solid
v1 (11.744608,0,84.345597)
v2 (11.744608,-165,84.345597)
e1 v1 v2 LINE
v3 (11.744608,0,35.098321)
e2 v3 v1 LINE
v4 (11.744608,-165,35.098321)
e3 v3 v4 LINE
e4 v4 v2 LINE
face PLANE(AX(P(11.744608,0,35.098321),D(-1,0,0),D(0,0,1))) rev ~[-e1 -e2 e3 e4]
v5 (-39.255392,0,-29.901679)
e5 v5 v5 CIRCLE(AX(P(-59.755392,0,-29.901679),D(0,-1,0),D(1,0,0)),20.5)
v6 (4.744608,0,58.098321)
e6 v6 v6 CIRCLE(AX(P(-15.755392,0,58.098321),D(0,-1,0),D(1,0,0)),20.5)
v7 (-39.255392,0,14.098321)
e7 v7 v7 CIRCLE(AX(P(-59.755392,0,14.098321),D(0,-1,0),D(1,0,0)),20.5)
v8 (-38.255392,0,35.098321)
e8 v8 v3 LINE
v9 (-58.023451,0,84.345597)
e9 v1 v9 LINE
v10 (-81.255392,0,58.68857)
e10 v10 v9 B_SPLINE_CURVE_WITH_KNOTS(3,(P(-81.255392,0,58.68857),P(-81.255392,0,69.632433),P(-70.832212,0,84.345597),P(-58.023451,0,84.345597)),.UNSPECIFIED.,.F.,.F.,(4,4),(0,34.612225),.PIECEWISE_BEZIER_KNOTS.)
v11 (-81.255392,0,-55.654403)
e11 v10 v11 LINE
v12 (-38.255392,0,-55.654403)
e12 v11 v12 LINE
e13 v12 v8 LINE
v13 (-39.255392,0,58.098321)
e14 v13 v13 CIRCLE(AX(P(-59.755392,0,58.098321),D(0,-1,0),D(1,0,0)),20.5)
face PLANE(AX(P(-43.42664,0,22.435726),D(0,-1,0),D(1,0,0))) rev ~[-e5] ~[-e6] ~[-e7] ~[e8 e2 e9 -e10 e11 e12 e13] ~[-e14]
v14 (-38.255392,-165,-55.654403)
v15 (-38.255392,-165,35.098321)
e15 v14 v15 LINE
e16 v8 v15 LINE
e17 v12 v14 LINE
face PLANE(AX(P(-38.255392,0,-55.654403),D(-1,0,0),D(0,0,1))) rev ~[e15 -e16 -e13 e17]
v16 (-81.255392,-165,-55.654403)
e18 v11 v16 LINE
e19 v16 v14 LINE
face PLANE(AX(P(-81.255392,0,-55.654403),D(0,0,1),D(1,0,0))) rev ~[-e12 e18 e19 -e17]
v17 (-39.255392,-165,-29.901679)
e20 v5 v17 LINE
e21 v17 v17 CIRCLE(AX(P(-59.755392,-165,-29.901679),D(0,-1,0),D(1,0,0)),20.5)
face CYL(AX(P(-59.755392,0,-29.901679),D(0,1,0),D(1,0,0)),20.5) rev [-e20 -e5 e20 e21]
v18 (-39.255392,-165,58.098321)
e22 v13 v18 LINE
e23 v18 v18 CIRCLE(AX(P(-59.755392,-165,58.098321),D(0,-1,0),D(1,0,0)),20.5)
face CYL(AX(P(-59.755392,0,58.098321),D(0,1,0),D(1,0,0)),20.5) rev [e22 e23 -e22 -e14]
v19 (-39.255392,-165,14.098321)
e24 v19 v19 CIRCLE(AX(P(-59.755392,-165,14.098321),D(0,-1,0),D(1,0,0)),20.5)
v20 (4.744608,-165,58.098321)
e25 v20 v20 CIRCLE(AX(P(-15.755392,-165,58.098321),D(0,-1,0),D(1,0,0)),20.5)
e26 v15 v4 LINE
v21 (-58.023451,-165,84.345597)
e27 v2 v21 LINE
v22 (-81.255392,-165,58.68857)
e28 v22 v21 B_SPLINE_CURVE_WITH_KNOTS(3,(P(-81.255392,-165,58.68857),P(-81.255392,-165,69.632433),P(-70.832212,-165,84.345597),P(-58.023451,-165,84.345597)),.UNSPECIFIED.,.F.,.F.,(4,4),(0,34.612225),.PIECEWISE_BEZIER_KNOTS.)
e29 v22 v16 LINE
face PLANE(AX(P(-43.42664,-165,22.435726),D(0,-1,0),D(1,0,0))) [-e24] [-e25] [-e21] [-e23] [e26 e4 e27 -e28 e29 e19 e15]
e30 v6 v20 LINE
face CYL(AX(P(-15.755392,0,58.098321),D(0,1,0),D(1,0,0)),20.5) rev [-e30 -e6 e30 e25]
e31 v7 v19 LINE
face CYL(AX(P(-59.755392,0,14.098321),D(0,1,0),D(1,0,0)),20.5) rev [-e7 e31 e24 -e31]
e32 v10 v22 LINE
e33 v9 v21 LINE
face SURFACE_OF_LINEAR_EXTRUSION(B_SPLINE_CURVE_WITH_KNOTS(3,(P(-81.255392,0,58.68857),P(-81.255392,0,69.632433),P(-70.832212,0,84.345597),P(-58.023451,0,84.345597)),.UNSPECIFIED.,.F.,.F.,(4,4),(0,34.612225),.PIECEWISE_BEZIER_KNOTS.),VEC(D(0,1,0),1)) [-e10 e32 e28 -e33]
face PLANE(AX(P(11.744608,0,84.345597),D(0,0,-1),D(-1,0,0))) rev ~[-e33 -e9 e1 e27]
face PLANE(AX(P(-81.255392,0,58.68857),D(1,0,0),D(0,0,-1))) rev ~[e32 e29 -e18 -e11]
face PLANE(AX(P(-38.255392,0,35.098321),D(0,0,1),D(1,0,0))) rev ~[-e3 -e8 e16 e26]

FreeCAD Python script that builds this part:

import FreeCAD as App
import Part
import Sketcher
from FreeCAD import Vector
Q = App.Units.Quantity

doc = App.newDocument("Part")
params = doc.addObject("Spreadsheet::Sheet", "Params")
for row, (alias, value) in enumerate([
    ("sketch1_diameter", "41 mm"),
    ("sketch1_width", "43 mm"),
    ("sketch1_width2", "50 mm"),
    ("pad1_length", "165 mm"),
], start=1):
    params.set(f"A{row}", alias)
    params.set(f"B{row}", "=" + value)
    params.setAlias(f"B{row}", alias)

body = doc.addObject("PartDesign::Body", "Body")

# Sketch on XZ plane
sketch1 = body.newObject("Sketcher::SketchObject", "Sketch")
sketch1.AttachmentSupport = (doc.getObject("XZ_Plane"), [""])
sketch1.MapMode = "FlatFace"
sketch1.addGeometry([
    Part.LineSegment(Vector(-81.255392, -55.654403, 0), Vector(-38.255392, -55.654403, 0)),  # 0
    Part.LineSegment(Vector(-38.255392, -55.654403, 0), Vector(-38.255392, 35.098321, 0)),  # 1
    Part.LineSegment(Vector(-38.255392, 35.098321, 0), Vector(11.744608, 35.098321, 0)),  # 2
    Part.LineSegment(Vector(11.744608, 35.098321, 0), Vector(11.744608, 84.345597, 0)),  # 3
    Part.LineSegment(Vector(11.744608, 84.345597, 0), Vector(-58.023451, 84.345597, 0)),  # 4
    Part.BSplineCurve([Vector(-81.255392, 58.68857, 0), Vector(-81.255392, 69.632433, 0), Vector(-70.832212, 84.345597, 0), Vector(-58.023451, 84.345597, 0)], [4, 4], [0, 34.612225], False, 3, [1, 1, 1, 1], False),  # 5
    Part.LineSegment(Vector(-81.255392, 58.68857, 0), Vector(-81.255392, -55.654403, 0)),  # 6
    Part.Circle(Vector(-59.755392, -29.901679, 0), Vector(0, 0, 1), 20.5),  # 7
    Part.Circle(Vector(-59.755392, 14.098321, 0), Vector(0, 0, 1), 20.5),  # 8
    Part.Circle(Vector(-59.755392, 58.098321, 0), Vector(0, 0, 1), 20.5),  # 9
    Part.Circle(Vector(-15.755392, 58.098321, 0), Vector(0, 0, 1), 20.5),  # 10
], False)
sketch1.addConstraint([
    Sketcher.Constraint("Block", 5),
    Sketcher.Constraint("Coincident", 0, 2, 1, 1),
    Sketcher.Constraint("Coincident", 1, 2, 2, 1),
    Sketcher.Constraint("Coincident", 2, 2, 3, 1),
    Sketcher.Constraint("Coincident", 3, 2, 4, 1),
    Sketcher.Constraint("Coincident", 4, 2, 5, 2),
    Sketcher.Constraint("Coincident", 5, 1, 6, 1),
    Sketcher.Constraint("Coincident", 6, 2, 0, 1),
    Sketcher.Constraint("Horizontal", 0),
    Sketcher.Constraint("Vertical", 1),
    Sketcher.Constraint("Horizontal", 2),
    Sketcher.Constraint("Vertical", 3),
    Sketcher.Constraint("Horizontal", 4),
    Sketcher.Constraint("Vertical", 6),
    Sketcher.Constraint("Equal", 7, 8),
    Sketcher.Constraint("Equal", 8, 9),
    Sketcher.Constraint("Equal", 9, 10),
    Sketcher.Constraint("Horizontal", 9, 3, 10, 3),
    Sketcher.Constraint("Vertical", 7, 3, 8, 3),
    Sketcher.Constraint("Vertical", 8, 3, 9, 3),
    Sketcher.Constraint("Diameter", 7, Q("41 mm")),
    Sketcher.Constraint("DistanceX", 0, 1, 0, 2, Q("43 mm")),
    Sketcher.Constraint("DistanceX", 2, 1, 2, 2, Q("50 mm")),
    Sketcher.Constraint("DistanceY", 7, 3, 8, 3, Q("44 mm")),
    Sketcher.Constraint("DistanceY", 8, 3, 9, 3, Q("44 mm")),
    Sketcher.Constraint("DistanceX", 9, 3, 10, 3, Q("44 mm")),
    Sketcher.Constraint("DistanceY", 8, 3, 1, 2, Q("21 mm")),
    Sketcher.Constraint("DistanceX", 7, 3, 0, 2, Q("21.5 mm")),
    Sketcher.Constraint("DistanceY", 1, 1, 1, 2, Q("90.752724 mm")),
    Sketcher.Constraint("DistanceY", 3, 1, 3, 2, Q("49.247276 mm")),
])
sketch1.setExpression("Constraints[20]", "Params.sketch1_diameter")
sketch1.setExpression("Constraints[21]", "Params.sketch1_width")
sketch1.setExpression("Constraints[22]", "Params.sketch1_width2")
pad1 = body.newObject("PartDesign::Pad", "Pad")
pad1.Profile = sketch1
pad1.setExpression("Length", "Params.pad1_length")

doc.recompute()
